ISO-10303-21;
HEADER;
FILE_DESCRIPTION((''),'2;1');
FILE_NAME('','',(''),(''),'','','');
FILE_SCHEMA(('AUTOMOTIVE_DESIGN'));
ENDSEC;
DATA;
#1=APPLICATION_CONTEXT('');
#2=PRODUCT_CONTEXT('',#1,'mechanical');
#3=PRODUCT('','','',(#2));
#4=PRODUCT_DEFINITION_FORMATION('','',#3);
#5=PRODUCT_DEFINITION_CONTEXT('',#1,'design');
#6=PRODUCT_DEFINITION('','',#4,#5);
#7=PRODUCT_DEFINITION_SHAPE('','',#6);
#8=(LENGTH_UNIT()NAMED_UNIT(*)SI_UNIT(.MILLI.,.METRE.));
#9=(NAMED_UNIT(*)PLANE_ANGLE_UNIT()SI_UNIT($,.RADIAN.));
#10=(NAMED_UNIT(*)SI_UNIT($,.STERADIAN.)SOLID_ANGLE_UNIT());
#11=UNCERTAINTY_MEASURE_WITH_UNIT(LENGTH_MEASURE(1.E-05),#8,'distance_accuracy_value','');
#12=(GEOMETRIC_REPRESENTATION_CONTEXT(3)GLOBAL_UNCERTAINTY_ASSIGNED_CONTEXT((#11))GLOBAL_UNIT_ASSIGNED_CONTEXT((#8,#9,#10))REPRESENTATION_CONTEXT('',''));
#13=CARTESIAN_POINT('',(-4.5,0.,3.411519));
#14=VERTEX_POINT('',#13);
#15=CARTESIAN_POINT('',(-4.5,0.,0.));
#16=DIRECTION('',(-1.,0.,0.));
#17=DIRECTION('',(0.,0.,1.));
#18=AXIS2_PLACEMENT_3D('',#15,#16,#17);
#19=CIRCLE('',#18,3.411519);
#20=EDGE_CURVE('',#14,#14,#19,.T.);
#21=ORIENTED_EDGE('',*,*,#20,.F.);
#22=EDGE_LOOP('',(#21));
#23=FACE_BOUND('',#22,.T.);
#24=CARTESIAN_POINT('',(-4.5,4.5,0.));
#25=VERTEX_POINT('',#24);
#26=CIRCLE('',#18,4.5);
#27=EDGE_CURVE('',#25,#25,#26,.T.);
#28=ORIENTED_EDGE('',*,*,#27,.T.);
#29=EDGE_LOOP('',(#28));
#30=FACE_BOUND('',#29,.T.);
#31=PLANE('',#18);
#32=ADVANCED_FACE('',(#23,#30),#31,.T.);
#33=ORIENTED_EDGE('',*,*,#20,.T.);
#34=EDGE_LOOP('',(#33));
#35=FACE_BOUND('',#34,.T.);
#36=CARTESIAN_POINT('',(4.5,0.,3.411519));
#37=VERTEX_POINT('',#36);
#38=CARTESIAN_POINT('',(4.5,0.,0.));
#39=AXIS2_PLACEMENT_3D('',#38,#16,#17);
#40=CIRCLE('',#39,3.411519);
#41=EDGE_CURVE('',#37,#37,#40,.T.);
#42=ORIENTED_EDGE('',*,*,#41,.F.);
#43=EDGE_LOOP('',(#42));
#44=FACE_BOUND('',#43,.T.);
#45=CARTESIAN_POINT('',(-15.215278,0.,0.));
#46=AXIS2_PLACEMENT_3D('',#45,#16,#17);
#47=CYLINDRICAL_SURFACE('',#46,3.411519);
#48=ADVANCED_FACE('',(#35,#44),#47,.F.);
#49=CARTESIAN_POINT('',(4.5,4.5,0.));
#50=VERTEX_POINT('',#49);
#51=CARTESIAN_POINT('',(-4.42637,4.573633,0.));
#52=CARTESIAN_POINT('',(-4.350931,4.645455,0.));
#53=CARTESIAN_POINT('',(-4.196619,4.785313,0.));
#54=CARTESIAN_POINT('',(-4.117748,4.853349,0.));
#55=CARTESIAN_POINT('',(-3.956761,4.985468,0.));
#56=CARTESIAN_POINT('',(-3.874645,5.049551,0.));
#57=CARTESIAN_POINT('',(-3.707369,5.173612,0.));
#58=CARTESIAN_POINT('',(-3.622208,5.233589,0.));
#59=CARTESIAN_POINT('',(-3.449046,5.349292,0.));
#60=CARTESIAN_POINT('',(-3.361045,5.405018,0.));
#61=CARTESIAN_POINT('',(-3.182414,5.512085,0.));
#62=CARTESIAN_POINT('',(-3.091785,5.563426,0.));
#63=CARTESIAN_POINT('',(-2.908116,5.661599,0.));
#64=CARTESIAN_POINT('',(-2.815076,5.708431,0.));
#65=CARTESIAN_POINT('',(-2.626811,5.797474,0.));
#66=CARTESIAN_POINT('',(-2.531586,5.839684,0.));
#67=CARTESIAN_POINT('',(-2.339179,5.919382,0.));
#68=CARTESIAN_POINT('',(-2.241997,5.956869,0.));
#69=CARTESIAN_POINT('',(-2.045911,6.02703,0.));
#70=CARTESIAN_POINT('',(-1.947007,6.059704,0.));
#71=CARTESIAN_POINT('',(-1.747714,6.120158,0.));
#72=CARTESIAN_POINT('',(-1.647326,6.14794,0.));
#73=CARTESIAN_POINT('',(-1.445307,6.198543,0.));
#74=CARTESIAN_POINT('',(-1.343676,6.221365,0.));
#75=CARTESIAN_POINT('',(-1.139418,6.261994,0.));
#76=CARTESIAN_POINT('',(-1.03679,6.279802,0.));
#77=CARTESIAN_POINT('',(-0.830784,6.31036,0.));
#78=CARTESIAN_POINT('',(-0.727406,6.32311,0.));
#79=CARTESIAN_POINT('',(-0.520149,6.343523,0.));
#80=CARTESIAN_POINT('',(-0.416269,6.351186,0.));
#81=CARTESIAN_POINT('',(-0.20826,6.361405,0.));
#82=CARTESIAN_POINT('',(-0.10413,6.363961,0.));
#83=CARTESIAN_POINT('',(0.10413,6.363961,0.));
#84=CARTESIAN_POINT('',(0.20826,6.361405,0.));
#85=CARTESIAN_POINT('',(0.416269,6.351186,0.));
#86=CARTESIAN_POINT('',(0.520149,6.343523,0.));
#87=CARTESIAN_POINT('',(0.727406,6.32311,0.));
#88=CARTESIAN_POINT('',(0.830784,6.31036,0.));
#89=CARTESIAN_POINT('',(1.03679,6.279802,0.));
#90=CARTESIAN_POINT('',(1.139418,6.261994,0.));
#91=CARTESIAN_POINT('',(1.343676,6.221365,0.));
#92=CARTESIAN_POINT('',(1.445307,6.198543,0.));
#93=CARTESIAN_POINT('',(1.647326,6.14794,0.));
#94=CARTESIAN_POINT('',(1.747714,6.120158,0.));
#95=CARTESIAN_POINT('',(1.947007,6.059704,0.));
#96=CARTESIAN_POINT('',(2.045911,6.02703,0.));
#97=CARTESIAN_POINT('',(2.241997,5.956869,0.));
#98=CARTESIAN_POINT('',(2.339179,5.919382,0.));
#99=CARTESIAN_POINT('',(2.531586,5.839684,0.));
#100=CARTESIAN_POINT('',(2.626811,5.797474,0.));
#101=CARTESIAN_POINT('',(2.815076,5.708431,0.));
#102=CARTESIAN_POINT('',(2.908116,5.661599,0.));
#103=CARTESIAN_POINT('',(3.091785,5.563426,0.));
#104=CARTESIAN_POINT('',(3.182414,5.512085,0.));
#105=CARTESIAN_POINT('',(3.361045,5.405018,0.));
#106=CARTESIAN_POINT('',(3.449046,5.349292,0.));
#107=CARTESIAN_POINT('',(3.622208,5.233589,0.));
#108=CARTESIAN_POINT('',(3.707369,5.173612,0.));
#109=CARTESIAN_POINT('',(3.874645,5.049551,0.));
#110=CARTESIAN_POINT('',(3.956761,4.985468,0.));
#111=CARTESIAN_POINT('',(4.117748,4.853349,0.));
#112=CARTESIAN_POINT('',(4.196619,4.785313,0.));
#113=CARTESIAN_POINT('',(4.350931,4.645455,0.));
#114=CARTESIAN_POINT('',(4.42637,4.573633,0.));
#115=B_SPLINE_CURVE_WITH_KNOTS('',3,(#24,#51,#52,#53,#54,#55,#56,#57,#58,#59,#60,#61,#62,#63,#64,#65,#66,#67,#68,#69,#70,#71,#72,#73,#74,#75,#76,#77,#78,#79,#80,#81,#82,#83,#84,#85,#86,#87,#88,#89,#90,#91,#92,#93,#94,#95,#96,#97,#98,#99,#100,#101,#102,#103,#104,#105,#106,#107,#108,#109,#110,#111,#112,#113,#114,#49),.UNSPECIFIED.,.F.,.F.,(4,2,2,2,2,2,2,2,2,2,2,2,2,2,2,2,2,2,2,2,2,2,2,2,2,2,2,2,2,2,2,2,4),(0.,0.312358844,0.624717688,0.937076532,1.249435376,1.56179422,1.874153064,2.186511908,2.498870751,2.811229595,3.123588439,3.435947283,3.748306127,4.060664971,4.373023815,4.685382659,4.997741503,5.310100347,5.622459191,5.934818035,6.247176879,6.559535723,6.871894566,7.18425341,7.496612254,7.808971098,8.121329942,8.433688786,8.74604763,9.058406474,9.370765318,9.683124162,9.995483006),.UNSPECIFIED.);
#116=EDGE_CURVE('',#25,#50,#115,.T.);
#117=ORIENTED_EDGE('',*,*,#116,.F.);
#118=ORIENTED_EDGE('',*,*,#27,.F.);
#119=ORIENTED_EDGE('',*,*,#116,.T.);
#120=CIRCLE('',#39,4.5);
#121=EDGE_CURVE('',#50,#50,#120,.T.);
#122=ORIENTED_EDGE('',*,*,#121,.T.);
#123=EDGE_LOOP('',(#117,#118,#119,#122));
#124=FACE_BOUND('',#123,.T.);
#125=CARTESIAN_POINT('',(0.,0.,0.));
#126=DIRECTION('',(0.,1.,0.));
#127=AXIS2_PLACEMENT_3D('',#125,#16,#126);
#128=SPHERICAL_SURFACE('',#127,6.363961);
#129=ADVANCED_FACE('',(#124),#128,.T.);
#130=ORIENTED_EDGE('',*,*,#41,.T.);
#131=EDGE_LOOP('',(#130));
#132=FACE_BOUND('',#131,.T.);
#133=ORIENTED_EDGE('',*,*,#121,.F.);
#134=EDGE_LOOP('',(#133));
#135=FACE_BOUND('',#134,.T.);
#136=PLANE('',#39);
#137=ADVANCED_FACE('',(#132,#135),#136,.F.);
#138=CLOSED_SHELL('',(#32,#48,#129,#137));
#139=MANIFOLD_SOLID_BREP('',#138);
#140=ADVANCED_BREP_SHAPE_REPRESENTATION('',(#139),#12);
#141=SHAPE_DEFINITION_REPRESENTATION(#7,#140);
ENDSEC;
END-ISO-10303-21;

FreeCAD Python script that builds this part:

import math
import FreeCAD as App
import Part
import Sketcher
from FreeCAD import Vector
Q = App.Units.Quantity

doc = App.newDocument("Part")
body = doc.addObject("PartDesign::Body", "Body")

sketch1 = body.newObject("Sketcher::SketchObject", "Sketch")
sketch1.AttachmentSupport = (doc.getObject("XY_Plane"), [""])
sketch1.MapMode = "FlatFace"
sketch1.addGeometry(Part.LineSegment(Vector(-4.5, -3.4, 0), Vector(-4.5, -4.5, 0)), False)
sketch1.addGeometry(Part.ArcOfCircle(Part.Circle(Vector(0, 0, 0), Vector(0, 0, 1), 6.4), math.radians(-135), math.radians(-45)), False)
sketch1.addGeometry(Part.LineSegment(Vector(4.5, -4.5, 0), Vector(4.5, -3.4, 0)), False)
sketch1.addGeometry(Part.LineSegment(Vector(4.5, -3.4, 0), Vector(-4.5, -3.4, 0)), False)
sketch1.addGeometry(Part.ArcOfCircle(Part.Circle(Vector(0, 0, 0), Vector(0, 0, 1), 6.4), math.radians(45), math.radians(135)), False)
sketch1.addGeometry(Part.LineSegment(Vector(-4.5, 4.5, 0), Vector(-4.5, 3.4, 0)), False)
sketch1.addGeometry(Part.LineSegment(Vector(-4.5, 3.4, 0), Vector(4.5, 3.4, 0)), False)
sketch1.addGeometry(Part.LineSegment(Vector(4.5, 3.4, 0), Vector(4.5, 4.5, 0)), False)
sketch1.addConstraint(Sketcher.Constraint("Coincident", 0, 2, 1, 1))
sketch1.addConstraint(Sketcher.Constraint("Coincident", 1, 2, 2, 1))
sketch1.addConstraint(Sketcher.Constraint("Coincident", 2, 2, 3, 1))
sketch1.addConstraint(Sketcher.Constraint("Coincident", 3, 2, 0, 1))
sketch1.addConstraint(Sketcher.Constraint("Coincident", 4, 2, 5, 1))
sketch1.addConstraint(Sketcher.Constraint("Coincident", 5, 2, 6, 1))
sketch1.addConstraint(Sketcher.Constraint("Coincident", 6, 2, 7, 1))
sketch1.addConstraint(Sketcher.Constraint("Coincident", 7, 2, 4, 1))
sketch1.addConstraint(Sketcher.Constraint("Vertical", 0))
sketch1.addConstraint(Sketcher.Constraint("Vertical", 2))
sketch1.addConstraint(Sketcher.Constraint("Horizontal", 3))
sketch1.addConstraint(Sketcher.Constraint("Vertical", 5))
sketch1.addConstraint(Sketcher.Constraint("Horizontal", 6))
sketch1.addConstraint(Sketcher.Constraint("Vertical", 7))
sketch1.addConstraint(Sketcher.Constraint("Coincident", 1, 3, -1, 1))
sketch1.addConstraint(Sketcher.Constraint("Coincident", 4, 3, -1, 1))
sketch1.addConstraint(Sketcher.Constraint("Equal", 1, 4))
sketch1.addConstraint(Sketcher.Constraint("Symmetric", 2, 2, 5, 2, -1, 1))
sketch1.addConstraint(Sketcher.Constraint("Horizontal", 0, 2, 1, 2))
sketch1.addConstraint(Sketcher.Constraint("Horizontal", 4, 2, 7, 2))
sketch1.addConstraint(Sketcher.Constraint("DistanceX", 3, 2, 3, 1, Q("9 mm")))
sketch1.addConstraint(Sketcher.Constraint("DistanceY", 0, 2, 4, 2, Q("9 mm")))
sketch1.addConstraint(Sketcher.Constraint("DistanceY", 0, 2, 0, 1, Q("1.088481 mm")))
revolution = body.newObject("PartDesign::Revolution", "Revolution")
revolution.Profile = sketch1
revolution.ReferenceAxis = (sketch1, ["H_Axis"])
revolution.Angle = 360

doc.recompute()
